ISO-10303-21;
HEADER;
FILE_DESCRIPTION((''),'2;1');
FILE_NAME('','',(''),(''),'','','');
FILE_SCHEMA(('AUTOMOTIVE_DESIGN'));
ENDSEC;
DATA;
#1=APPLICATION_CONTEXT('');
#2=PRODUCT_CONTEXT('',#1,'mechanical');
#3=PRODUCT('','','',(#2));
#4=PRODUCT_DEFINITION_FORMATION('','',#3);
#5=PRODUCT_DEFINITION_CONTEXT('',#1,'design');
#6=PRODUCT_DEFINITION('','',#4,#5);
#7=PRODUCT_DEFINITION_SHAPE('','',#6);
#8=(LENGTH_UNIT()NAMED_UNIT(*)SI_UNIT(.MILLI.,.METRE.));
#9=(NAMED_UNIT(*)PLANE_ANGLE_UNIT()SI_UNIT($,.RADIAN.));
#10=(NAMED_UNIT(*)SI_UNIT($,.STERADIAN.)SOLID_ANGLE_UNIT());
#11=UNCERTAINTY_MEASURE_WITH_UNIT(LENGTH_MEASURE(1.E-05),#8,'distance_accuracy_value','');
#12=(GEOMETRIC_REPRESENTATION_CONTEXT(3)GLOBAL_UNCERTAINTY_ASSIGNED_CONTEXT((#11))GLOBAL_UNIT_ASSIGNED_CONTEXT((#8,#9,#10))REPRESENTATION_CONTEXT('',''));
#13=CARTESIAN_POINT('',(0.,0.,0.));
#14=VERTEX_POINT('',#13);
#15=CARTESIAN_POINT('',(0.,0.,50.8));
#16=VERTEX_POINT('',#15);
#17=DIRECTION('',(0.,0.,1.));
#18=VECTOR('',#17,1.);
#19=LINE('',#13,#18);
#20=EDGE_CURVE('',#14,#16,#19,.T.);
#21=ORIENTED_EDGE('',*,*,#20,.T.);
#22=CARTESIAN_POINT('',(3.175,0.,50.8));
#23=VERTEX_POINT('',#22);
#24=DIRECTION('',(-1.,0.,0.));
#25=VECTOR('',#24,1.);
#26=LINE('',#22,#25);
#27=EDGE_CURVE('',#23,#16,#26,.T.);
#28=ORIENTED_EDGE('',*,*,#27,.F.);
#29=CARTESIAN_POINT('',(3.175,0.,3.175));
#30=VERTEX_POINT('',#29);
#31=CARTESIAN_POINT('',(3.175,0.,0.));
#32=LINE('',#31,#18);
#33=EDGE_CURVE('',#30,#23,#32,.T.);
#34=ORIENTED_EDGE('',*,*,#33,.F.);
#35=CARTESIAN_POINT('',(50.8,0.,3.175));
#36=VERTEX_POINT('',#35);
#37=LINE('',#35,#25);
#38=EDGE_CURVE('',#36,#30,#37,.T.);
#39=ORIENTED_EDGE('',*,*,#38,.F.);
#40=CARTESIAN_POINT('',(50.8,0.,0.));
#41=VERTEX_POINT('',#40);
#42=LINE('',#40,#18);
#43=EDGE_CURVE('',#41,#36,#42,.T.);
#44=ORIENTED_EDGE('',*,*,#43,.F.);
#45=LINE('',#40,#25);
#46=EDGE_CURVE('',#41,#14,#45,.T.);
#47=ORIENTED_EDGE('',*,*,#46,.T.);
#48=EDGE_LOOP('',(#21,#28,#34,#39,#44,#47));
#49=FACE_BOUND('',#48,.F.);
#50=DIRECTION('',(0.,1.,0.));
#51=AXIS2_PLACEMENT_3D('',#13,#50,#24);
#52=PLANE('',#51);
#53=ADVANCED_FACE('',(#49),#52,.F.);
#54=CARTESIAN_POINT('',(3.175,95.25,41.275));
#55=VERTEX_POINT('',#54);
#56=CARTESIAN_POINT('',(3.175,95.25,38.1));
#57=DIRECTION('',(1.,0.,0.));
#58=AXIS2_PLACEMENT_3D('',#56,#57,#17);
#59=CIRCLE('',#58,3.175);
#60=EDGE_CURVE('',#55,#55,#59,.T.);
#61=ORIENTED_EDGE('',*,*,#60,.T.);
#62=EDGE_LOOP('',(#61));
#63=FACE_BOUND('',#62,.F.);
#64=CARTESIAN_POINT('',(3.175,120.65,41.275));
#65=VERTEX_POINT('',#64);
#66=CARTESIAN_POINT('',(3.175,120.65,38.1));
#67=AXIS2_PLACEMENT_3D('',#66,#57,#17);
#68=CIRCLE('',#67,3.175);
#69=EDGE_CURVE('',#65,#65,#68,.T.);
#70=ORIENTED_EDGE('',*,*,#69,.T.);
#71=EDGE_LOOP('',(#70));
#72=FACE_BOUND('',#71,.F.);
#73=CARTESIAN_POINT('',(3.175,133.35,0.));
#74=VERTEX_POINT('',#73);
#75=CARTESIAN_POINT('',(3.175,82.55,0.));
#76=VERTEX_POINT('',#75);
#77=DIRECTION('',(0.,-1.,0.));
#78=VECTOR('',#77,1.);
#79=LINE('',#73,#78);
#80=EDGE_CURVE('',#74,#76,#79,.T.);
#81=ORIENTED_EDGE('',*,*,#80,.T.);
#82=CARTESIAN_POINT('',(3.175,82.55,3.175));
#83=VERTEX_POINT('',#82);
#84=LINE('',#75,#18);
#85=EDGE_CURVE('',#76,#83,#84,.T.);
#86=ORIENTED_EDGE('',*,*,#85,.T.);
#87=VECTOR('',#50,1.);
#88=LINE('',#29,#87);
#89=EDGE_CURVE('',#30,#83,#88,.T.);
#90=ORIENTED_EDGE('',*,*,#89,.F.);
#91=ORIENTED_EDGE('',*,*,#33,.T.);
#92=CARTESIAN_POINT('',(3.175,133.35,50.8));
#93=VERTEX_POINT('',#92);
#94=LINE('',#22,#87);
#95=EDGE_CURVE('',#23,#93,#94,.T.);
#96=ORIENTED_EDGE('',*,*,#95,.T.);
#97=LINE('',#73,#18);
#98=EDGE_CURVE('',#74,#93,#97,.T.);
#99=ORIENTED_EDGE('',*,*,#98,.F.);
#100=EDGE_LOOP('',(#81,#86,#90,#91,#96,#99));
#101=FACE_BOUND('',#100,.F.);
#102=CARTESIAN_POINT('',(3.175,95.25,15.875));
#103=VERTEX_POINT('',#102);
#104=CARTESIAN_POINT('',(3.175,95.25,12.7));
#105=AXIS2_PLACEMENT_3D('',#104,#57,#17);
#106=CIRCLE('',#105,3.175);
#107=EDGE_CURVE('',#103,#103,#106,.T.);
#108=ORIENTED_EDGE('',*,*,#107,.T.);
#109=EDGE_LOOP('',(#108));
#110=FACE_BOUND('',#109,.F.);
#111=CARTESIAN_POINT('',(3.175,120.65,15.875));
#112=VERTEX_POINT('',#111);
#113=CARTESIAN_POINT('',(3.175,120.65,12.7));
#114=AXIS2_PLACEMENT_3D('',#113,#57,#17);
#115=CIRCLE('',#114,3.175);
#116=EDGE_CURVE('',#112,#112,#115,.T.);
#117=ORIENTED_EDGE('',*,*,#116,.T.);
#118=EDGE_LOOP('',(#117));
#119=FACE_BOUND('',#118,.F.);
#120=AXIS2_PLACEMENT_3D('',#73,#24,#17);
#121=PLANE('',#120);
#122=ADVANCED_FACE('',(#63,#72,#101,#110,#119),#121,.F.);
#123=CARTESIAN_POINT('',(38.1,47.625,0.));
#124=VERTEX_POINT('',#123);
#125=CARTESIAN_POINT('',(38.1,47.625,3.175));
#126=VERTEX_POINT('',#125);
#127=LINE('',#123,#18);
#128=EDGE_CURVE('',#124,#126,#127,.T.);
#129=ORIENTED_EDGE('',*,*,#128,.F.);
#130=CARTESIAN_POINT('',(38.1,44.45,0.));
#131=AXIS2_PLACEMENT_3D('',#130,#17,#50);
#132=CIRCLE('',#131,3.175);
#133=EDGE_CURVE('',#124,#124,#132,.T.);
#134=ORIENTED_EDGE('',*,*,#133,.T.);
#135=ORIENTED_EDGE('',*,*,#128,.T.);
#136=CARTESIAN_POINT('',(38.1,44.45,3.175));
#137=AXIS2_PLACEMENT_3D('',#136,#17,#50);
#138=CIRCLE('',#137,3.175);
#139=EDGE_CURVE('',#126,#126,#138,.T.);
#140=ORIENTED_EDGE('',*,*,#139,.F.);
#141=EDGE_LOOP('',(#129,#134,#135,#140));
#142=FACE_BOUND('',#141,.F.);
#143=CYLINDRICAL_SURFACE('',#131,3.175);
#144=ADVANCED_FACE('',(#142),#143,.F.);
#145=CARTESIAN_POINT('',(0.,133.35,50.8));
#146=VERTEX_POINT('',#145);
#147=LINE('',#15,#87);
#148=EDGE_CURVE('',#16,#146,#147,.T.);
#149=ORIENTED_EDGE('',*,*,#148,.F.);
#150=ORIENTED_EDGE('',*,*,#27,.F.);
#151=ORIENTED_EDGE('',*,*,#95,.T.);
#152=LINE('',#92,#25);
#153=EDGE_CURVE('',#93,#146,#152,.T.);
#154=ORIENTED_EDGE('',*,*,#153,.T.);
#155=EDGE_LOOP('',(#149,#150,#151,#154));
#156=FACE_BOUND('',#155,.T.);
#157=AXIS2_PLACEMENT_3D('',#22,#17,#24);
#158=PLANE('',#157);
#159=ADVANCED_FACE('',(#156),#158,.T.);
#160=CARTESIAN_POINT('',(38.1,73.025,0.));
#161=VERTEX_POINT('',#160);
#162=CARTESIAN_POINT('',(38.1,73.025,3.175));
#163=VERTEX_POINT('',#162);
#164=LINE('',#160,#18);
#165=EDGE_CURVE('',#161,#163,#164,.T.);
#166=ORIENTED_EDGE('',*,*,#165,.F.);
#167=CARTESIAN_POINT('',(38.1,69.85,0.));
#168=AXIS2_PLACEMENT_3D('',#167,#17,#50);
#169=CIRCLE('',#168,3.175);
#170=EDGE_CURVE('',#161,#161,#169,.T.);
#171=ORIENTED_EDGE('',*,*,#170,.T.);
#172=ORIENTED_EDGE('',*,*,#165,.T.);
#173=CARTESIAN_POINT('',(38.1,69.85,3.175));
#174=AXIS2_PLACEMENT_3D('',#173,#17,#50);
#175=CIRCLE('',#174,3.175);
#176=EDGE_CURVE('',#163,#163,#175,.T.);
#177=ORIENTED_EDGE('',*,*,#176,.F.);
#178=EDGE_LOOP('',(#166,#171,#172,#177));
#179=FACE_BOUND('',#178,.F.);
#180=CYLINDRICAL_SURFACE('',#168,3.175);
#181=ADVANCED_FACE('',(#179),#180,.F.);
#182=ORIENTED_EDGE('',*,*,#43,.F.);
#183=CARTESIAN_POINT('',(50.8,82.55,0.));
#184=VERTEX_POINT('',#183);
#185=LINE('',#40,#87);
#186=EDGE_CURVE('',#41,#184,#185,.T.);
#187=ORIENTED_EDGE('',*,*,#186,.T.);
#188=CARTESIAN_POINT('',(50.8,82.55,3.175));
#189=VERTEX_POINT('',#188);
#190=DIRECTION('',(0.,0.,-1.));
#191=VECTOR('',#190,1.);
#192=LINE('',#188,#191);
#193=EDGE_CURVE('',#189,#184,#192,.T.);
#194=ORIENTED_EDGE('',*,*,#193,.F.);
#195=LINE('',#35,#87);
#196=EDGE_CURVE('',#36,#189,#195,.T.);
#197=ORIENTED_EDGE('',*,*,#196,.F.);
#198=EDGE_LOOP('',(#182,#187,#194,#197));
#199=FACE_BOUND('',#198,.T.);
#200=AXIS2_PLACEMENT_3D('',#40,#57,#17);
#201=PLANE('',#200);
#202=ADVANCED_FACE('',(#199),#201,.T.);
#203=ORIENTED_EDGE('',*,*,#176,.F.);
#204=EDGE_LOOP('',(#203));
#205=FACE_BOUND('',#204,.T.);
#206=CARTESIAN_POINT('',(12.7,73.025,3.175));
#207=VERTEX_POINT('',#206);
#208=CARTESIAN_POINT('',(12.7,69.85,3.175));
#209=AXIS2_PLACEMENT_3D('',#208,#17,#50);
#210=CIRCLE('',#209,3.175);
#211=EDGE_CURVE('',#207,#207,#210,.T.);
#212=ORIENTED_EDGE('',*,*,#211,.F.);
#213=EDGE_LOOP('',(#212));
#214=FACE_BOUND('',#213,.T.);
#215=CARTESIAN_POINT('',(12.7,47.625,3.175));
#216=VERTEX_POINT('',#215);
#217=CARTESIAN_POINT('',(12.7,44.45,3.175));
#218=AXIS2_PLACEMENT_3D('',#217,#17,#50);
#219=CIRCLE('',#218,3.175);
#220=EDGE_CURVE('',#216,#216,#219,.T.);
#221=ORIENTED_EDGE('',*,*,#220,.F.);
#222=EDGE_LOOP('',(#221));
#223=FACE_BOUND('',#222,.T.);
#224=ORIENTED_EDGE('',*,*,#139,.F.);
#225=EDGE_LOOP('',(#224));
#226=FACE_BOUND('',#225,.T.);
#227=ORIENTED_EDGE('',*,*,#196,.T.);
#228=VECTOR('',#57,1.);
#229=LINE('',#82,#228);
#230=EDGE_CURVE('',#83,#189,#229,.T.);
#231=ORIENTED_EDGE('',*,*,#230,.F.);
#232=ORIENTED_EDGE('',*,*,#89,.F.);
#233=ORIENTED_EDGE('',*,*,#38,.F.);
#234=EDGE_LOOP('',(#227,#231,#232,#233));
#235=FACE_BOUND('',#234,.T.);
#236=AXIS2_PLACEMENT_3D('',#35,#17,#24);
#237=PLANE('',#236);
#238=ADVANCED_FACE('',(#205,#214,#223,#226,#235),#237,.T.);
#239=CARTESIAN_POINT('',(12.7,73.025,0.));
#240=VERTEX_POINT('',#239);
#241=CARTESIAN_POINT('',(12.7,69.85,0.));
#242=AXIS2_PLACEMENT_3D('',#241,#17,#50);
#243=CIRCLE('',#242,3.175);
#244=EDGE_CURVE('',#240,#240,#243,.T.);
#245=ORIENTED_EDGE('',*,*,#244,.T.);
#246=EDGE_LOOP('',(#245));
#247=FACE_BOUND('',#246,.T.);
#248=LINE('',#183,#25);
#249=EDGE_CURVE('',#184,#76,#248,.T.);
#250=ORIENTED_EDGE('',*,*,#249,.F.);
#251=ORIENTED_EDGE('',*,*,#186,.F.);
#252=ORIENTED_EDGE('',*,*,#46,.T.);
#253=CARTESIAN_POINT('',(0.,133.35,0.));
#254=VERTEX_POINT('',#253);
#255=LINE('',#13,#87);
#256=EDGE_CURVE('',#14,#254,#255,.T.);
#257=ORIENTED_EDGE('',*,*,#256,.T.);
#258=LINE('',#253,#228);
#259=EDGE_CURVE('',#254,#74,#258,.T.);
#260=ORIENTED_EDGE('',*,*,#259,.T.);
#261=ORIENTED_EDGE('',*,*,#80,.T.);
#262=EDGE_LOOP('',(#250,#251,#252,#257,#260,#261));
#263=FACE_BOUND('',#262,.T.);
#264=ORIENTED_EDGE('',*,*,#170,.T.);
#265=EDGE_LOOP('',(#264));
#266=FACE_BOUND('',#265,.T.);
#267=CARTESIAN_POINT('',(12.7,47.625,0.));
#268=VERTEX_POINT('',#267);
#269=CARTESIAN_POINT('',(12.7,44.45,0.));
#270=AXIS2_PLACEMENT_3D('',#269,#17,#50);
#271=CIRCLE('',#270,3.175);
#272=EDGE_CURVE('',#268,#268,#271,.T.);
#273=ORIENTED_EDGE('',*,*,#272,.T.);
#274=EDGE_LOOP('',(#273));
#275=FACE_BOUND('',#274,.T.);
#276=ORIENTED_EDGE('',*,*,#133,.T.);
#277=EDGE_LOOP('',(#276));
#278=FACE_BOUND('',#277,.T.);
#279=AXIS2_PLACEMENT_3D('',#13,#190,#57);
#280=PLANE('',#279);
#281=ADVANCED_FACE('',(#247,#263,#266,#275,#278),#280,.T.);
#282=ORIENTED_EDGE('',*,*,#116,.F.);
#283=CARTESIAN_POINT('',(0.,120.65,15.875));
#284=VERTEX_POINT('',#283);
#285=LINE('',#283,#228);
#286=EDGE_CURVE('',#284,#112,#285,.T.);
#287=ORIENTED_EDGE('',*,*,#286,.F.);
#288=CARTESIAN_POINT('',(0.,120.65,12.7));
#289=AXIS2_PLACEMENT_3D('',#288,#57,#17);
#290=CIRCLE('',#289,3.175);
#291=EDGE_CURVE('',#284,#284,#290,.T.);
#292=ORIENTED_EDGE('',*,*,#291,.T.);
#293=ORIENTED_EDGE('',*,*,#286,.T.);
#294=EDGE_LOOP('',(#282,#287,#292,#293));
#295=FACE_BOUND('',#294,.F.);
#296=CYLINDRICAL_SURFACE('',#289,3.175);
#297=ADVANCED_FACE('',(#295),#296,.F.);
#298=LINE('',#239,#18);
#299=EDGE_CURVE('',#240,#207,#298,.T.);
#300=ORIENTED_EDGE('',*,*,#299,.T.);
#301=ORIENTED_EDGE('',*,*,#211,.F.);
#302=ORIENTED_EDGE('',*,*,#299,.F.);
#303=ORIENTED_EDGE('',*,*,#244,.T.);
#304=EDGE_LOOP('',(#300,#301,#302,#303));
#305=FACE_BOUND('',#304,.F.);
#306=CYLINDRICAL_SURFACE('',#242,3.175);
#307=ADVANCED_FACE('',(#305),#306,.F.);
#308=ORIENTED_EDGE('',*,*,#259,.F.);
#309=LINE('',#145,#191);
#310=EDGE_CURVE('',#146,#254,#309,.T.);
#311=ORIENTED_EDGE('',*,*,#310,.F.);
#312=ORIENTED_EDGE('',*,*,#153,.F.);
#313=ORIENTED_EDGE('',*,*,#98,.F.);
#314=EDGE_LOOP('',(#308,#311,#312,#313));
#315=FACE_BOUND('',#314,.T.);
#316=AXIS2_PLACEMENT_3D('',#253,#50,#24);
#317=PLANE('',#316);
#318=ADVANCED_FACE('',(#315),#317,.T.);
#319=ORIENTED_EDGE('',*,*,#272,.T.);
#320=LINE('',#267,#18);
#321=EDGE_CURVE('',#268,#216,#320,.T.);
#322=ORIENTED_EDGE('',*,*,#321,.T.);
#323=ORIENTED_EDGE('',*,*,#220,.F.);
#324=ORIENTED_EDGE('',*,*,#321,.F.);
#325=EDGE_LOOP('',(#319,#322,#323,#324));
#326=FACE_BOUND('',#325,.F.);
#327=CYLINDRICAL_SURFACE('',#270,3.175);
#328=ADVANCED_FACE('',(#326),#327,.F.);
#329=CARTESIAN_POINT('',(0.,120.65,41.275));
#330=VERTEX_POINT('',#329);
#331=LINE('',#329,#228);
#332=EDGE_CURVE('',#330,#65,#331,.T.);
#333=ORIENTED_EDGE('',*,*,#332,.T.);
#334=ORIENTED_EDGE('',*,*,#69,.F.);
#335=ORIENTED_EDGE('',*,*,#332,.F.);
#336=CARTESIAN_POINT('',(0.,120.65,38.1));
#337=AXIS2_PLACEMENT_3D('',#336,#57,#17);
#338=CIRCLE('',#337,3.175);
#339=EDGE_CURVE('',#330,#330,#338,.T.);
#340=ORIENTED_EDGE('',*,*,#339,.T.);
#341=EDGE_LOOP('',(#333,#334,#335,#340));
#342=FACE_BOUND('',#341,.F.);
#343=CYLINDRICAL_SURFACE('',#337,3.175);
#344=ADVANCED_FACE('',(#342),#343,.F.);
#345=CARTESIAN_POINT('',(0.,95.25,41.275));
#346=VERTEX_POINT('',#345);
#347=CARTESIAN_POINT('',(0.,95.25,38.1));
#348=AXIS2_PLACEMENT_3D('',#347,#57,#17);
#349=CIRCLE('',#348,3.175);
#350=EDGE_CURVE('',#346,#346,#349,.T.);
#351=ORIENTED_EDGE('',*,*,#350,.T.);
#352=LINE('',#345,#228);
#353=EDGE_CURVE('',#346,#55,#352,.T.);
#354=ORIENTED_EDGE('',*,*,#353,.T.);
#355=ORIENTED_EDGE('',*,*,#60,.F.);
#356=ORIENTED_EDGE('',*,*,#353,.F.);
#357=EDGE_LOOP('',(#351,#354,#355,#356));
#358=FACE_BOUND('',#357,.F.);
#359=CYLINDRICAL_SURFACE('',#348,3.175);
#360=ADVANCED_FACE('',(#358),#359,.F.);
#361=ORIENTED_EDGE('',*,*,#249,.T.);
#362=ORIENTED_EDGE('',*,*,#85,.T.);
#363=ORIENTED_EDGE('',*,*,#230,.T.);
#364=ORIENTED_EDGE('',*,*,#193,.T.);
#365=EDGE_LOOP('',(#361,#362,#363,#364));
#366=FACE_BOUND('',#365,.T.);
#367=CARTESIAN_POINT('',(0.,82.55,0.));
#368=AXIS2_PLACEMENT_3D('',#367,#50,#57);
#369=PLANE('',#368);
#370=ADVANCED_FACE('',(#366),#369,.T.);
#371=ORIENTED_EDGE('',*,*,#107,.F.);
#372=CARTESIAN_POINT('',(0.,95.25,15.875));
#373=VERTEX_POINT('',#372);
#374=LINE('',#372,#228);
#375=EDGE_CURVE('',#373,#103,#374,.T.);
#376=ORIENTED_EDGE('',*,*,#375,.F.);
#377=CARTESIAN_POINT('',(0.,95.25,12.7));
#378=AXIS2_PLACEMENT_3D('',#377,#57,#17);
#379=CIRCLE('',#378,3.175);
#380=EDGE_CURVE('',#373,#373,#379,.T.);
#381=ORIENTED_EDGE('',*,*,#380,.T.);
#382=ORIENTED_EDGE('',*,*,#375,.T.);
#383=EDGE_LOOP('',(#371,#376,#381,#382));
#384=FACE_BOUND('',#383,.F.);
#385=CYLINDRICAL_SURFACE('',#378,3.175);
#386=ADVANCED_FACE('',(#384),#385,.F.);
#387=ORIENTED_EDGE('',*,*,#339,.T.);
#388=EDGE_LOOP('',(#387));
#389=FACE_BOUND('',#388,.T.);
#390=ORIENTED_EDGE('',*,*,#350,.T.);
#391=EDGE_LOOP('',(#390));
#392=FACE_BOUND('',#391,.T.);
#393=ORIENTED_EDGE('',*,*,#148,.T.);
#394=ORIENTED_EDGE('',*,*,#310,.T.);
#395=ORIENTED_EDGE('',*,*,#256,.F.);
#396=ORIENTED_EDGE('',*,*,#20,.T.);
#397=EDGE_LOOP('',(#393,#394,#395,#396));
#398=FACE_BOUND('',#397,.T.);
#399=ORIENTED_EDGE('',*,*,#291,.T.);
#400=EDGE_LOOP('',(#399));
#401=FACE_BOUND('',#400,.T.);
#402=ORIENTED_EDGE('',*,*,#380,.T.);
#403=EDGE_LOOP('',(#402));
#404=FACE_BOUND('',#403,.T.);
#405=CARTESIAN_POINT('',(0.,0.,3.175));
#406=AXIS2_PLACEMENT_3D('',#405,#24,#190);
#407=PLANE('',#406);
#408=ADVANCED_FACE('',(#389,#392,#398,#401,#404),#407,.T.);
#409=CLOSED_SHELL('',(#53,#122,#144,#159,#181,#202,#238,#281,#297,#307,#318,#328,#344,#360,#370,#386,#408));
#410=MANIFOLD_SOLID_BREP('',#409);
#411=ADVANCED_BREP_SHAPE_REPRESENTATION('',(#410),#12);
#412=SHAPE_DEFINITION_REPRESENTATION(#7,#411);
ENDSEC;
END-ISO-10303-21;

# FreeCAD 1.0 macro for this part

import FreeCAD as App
import Part
import Sketcher
Q = App.Units.Quantity


def add_polygon(sketch, points):
    """Adds a closed chain of lines whose ends are joined by coincident constraints."""
    first, n = sketch.GeometryCount, len(points)
    for a, b in zip(points, points[1:] + points[:1]):
        sketch.addGeometry(Part.LineSegment(App.Vector(*a, 0), App.Vector(*b, 0)), False)
    for i in range(n):
        sketch.addConstraint(Sketcher.Constraint("Coincident", first + i, 2, first + (i + 1) % n, 1))

doc = App.newDocument("Part")
params = doc.addObject("Spreadsheet::Sheet", "Params")
for row, (alias, value) in enumerate([
    ("sketch1_width", "2 in"),
    ("sketch1_width2", "0.125 in"),
    ("pad1_length", "5.25 in"),
    ("sketch2_diameter", "0.25 in"),
    ("hole_diameter", "0.25 in"),
    ("sketch3_width", "1.875 in"),
    ("sketch3_height", "0.125 in"),
    ("pocket1_length", "2 in"),
    ("sketch4_diameter", "0.25 in"),
    ("hole2_diameter", "0.25 in"),
], start=1):
    params.set(f"A{row}", alias)
    params.set(f"B{row}", "=" + value)
    params.setAlias(f"B{row}", alias)

body = doc.addObject("PartDesign::Body", "Body")

# Sketch on XZ plane
sketch1 = body.newObject("Sketcher::SketchObject", "Sketch")
sketch1.AttachmentSupport = (doc.getObject("XZ_Plane"), [""])
sketch1.MapMode = "FlatFace"
add_polygon(sketch1, [(0, 0), (0, 50.8), (3.175, 50.8), (3.175, 3.175), (50.8, 3.175), (50.8, 0)])  # lines 0-5
sketch1.addConstraint([
    Sketcher.Constraint("Vertical", 0),
    Sketcher.Constraint("Horizontal", 1),
    Sketcher.Constraint("Vertical", 2),
    Sketcher.Constraint("Horizontal", 3),
    Sketcher.Constraint("Vertical", 4),
    Sketcher.Constraint("Horizontal", 5),
    Sketcher.Constraint("Coincident", 5, 2, -1, 1),
    Sketcher.Constraint("Equal", 5, 0),
    Sketcher.Constraint("Equal", 3, 2),
    Sketcher.Constraint("DistanceX", 5, 2, 5, 1, Q("2 in")),
    Sketcher.Constraint("DistanceX", 1, 1, 1, 2, Q("0.125 in")),
])
sketch1.setExpression("Constraints[15]", "Params.sketch1_width")
sketch1.setExpression("Constraints[16]", "Params.sketch1_width2")
pad1 = body.newObject("PartDesign::Pad", "Pad")
pad1.Profile = sketch1
pad1.setExpression("Length", "Params.pad1_length")
pad1.Reversed = True

# Sketch on YZ plane
sketch2 = body.newObject("Sketcher::SketchObject", "Sketch001")
sketch2.AttachmentSupport = (doc.getObject("YZ_Plane"), [""])
sketch2.MapMode = "FlatFace"
sketch2.addGeometry([
    Part.Circle(App.Vector(120.65, 12.7, 0), App.Vector(0, 0, 1), 3.175),
    Part.Circle(App.Vector(120.65, 38.1, 0), App.Vector(0, 0, 1), 3.175),
    Part.Circle(App.Vector(95.25, 38.1, 0), App.Vector(0, 0, 1), 3.175),
    Part.Circle(App.Vector(95.25, 12.7, 0), App.Vector(0, 0, 1), 3.175),
], False)
sketch2.addConstraint([
    Sketcher.Constraint("Equal", 0, 1),
    Sketcher.Constraint("Equal", 1, 2),
    Sketcher.Constraint("Equal", 2, 3),
    Sketcher.Constraint("Horizontal", 1, 3, 2, 3),
    Sketcher.Constraint("Horizontal", 0, 3, 3, 3),
    Sketcher.Constraint("Vertical", 0, 3, 1, 3),
    Sketcher.Constraint("Vertical", 2, 3, 3, 3),
    Sketcher.Constraint("Diameter", 0, Q("0.25 in")),
    Sketcher.Constraint("DistanceY", 0, 3, 1, 3, Q("1 in")),
    Sketcher.Constraint("DistanceX", 2, 3, 1, 3, Q("1 in")),
    Sketcher.Constraint("DistanceY", -1, 1, 0, 3, Q("0.5 in")),
    Sketcher.Constraint("DistanceX", -1, 1, 0, 3, Q("4.75 in")),
])
sketch2.setExpression("Constraints[7]", "Params.sketch2_diameter")
doc.recompute()
hole = body.newObject("PartDesign::Hole", "Hole")
hole.Profile = sketch2
hole.ThreadType = "None"
hole.setExpression("Diameter", "Params.hole_diameter")
hole.DepthType = "ThroughAll"
hole.Reversed = True

# Sketch on XZ plane
sketch3 = body.newObject("Sketcher::SketchObject", "Sketch002")
sketch3.AttachmentSupport = (doc.getObject("XZ_Plane"), [""])
sketch3.MapMode = "FlatFace"
sketch3.AttachmentOffset = App.Placement(App.Vector(0, 0, -5.25 * 25.4), App.Rotation())
add_polygon(sketch3, [(50.8, 0), (3.175, 0), (3.175, 3.175), (50.8, 3.175)])  # lines 0-3
sketch3.addConstraint([
    Sketcher.Constraint("Horizontal", 0),
    Sketcher.Constraint("Vertical", 1),
    Sketcher.Constraint("Horizontal", 2),
    Sketcher.Constraint("Vertical", 3),
    Sketcher.Constraint("PointOnObject", 0, 2, -1),
    Sketcher.Constraint("DistanceX", -1, 1, 2, 2, Q("2 in")),
    Sketcher.Constraint("DistanceX", 0, 2, 0, 1, Q("1.875 in")),
    Sketcher.Constraint("DistanceY", 1, 1, 1, 2, Q("0.125 in")),
])
sketch3.setExpression("Constraints[10]", "Params.sketch3_width")
sketch3.setExpression("Constraints[11]", "Params.sketch3_height")
pocket1 = body.newObject("PartDesign::Pocket", "Pocket")
pocket1.Profile = sketch3
pocket1.setExpression("Length", "Params.pocket1_length")
pocket1.Reversed = True

# Sketch on XY plane
sketch4 = body.newObject("Sketcher::SketchObject", "Sketch003")
sketch4.AttachmentSupport = (doc.getObject("XY_Plane"), [""])
sketch4.MapMode = "FlatFace"
sketch4.addGeometry([
    Part.Circle(App.Vector(38.1, 69.85, 0), App.Vector(0, 0, 1), 3.175),
    Part.Circle(App.Vector(12.7, 69.85, 0), App.Vector(0, 0, 1), 3.175),
    Part.Circle(App.Vector(12.7, 44.45, 0), App.Vector(0, 0, 1), 3.175),
    Part.Circle(App.Vector(38.1, 44.45, 0), App.Vector(0, 0, 1), 3.175),
], False)
sketch4.addConstraint([
    Sketcher.Constraint("Equal", 0, 1),
    Sketcher.Constraint("Equal", 1, 2),
    Sketcher.Constraint("Equal", 2, 3),
    Sketcher.Constraint("Horizontal", 0, 3, 1, 3),
    Sketcher.Constraint("Horizontal", 2, 3, 3, 3),
    Sketcher.Constraint("Vertical", 1, 3, 2, 3),
    Sketcher.Constraint("Vertical", 0, 3, 3, 3),
    Sketcher.Constraint("Diameter", 0, Q("0.25 in")),
    Sketcher.Constraint("DistanceX", 1, 3, 0, 3, Q("1 in")),
    Sketcher.Constraint("DistanceY", 2, 3, 1, 3, Q("1 in")),
    Sketcher.Constraint("DistanceX", -1, 1, 0, 3, Q("1.5 in")),
    Sketcher.Constraint("DistanceY", -1, 1, 0, 3, Q("2.75 in")),
])
sketch4.setExpression("Constraints[7]", "Params.sketch4_diameter")
doc.recompute()
hole2 = body.newObject("PartDesign::Hole", "Hole001")
hole2.Profile = sketch4
hole2.ThreadType = "None"
hole2.setExpression("Diameter", "Params.hole2_diameter")
hole2.DepthType = "ThroughAll"
hole2.Reversed = True

doc.recompute()
